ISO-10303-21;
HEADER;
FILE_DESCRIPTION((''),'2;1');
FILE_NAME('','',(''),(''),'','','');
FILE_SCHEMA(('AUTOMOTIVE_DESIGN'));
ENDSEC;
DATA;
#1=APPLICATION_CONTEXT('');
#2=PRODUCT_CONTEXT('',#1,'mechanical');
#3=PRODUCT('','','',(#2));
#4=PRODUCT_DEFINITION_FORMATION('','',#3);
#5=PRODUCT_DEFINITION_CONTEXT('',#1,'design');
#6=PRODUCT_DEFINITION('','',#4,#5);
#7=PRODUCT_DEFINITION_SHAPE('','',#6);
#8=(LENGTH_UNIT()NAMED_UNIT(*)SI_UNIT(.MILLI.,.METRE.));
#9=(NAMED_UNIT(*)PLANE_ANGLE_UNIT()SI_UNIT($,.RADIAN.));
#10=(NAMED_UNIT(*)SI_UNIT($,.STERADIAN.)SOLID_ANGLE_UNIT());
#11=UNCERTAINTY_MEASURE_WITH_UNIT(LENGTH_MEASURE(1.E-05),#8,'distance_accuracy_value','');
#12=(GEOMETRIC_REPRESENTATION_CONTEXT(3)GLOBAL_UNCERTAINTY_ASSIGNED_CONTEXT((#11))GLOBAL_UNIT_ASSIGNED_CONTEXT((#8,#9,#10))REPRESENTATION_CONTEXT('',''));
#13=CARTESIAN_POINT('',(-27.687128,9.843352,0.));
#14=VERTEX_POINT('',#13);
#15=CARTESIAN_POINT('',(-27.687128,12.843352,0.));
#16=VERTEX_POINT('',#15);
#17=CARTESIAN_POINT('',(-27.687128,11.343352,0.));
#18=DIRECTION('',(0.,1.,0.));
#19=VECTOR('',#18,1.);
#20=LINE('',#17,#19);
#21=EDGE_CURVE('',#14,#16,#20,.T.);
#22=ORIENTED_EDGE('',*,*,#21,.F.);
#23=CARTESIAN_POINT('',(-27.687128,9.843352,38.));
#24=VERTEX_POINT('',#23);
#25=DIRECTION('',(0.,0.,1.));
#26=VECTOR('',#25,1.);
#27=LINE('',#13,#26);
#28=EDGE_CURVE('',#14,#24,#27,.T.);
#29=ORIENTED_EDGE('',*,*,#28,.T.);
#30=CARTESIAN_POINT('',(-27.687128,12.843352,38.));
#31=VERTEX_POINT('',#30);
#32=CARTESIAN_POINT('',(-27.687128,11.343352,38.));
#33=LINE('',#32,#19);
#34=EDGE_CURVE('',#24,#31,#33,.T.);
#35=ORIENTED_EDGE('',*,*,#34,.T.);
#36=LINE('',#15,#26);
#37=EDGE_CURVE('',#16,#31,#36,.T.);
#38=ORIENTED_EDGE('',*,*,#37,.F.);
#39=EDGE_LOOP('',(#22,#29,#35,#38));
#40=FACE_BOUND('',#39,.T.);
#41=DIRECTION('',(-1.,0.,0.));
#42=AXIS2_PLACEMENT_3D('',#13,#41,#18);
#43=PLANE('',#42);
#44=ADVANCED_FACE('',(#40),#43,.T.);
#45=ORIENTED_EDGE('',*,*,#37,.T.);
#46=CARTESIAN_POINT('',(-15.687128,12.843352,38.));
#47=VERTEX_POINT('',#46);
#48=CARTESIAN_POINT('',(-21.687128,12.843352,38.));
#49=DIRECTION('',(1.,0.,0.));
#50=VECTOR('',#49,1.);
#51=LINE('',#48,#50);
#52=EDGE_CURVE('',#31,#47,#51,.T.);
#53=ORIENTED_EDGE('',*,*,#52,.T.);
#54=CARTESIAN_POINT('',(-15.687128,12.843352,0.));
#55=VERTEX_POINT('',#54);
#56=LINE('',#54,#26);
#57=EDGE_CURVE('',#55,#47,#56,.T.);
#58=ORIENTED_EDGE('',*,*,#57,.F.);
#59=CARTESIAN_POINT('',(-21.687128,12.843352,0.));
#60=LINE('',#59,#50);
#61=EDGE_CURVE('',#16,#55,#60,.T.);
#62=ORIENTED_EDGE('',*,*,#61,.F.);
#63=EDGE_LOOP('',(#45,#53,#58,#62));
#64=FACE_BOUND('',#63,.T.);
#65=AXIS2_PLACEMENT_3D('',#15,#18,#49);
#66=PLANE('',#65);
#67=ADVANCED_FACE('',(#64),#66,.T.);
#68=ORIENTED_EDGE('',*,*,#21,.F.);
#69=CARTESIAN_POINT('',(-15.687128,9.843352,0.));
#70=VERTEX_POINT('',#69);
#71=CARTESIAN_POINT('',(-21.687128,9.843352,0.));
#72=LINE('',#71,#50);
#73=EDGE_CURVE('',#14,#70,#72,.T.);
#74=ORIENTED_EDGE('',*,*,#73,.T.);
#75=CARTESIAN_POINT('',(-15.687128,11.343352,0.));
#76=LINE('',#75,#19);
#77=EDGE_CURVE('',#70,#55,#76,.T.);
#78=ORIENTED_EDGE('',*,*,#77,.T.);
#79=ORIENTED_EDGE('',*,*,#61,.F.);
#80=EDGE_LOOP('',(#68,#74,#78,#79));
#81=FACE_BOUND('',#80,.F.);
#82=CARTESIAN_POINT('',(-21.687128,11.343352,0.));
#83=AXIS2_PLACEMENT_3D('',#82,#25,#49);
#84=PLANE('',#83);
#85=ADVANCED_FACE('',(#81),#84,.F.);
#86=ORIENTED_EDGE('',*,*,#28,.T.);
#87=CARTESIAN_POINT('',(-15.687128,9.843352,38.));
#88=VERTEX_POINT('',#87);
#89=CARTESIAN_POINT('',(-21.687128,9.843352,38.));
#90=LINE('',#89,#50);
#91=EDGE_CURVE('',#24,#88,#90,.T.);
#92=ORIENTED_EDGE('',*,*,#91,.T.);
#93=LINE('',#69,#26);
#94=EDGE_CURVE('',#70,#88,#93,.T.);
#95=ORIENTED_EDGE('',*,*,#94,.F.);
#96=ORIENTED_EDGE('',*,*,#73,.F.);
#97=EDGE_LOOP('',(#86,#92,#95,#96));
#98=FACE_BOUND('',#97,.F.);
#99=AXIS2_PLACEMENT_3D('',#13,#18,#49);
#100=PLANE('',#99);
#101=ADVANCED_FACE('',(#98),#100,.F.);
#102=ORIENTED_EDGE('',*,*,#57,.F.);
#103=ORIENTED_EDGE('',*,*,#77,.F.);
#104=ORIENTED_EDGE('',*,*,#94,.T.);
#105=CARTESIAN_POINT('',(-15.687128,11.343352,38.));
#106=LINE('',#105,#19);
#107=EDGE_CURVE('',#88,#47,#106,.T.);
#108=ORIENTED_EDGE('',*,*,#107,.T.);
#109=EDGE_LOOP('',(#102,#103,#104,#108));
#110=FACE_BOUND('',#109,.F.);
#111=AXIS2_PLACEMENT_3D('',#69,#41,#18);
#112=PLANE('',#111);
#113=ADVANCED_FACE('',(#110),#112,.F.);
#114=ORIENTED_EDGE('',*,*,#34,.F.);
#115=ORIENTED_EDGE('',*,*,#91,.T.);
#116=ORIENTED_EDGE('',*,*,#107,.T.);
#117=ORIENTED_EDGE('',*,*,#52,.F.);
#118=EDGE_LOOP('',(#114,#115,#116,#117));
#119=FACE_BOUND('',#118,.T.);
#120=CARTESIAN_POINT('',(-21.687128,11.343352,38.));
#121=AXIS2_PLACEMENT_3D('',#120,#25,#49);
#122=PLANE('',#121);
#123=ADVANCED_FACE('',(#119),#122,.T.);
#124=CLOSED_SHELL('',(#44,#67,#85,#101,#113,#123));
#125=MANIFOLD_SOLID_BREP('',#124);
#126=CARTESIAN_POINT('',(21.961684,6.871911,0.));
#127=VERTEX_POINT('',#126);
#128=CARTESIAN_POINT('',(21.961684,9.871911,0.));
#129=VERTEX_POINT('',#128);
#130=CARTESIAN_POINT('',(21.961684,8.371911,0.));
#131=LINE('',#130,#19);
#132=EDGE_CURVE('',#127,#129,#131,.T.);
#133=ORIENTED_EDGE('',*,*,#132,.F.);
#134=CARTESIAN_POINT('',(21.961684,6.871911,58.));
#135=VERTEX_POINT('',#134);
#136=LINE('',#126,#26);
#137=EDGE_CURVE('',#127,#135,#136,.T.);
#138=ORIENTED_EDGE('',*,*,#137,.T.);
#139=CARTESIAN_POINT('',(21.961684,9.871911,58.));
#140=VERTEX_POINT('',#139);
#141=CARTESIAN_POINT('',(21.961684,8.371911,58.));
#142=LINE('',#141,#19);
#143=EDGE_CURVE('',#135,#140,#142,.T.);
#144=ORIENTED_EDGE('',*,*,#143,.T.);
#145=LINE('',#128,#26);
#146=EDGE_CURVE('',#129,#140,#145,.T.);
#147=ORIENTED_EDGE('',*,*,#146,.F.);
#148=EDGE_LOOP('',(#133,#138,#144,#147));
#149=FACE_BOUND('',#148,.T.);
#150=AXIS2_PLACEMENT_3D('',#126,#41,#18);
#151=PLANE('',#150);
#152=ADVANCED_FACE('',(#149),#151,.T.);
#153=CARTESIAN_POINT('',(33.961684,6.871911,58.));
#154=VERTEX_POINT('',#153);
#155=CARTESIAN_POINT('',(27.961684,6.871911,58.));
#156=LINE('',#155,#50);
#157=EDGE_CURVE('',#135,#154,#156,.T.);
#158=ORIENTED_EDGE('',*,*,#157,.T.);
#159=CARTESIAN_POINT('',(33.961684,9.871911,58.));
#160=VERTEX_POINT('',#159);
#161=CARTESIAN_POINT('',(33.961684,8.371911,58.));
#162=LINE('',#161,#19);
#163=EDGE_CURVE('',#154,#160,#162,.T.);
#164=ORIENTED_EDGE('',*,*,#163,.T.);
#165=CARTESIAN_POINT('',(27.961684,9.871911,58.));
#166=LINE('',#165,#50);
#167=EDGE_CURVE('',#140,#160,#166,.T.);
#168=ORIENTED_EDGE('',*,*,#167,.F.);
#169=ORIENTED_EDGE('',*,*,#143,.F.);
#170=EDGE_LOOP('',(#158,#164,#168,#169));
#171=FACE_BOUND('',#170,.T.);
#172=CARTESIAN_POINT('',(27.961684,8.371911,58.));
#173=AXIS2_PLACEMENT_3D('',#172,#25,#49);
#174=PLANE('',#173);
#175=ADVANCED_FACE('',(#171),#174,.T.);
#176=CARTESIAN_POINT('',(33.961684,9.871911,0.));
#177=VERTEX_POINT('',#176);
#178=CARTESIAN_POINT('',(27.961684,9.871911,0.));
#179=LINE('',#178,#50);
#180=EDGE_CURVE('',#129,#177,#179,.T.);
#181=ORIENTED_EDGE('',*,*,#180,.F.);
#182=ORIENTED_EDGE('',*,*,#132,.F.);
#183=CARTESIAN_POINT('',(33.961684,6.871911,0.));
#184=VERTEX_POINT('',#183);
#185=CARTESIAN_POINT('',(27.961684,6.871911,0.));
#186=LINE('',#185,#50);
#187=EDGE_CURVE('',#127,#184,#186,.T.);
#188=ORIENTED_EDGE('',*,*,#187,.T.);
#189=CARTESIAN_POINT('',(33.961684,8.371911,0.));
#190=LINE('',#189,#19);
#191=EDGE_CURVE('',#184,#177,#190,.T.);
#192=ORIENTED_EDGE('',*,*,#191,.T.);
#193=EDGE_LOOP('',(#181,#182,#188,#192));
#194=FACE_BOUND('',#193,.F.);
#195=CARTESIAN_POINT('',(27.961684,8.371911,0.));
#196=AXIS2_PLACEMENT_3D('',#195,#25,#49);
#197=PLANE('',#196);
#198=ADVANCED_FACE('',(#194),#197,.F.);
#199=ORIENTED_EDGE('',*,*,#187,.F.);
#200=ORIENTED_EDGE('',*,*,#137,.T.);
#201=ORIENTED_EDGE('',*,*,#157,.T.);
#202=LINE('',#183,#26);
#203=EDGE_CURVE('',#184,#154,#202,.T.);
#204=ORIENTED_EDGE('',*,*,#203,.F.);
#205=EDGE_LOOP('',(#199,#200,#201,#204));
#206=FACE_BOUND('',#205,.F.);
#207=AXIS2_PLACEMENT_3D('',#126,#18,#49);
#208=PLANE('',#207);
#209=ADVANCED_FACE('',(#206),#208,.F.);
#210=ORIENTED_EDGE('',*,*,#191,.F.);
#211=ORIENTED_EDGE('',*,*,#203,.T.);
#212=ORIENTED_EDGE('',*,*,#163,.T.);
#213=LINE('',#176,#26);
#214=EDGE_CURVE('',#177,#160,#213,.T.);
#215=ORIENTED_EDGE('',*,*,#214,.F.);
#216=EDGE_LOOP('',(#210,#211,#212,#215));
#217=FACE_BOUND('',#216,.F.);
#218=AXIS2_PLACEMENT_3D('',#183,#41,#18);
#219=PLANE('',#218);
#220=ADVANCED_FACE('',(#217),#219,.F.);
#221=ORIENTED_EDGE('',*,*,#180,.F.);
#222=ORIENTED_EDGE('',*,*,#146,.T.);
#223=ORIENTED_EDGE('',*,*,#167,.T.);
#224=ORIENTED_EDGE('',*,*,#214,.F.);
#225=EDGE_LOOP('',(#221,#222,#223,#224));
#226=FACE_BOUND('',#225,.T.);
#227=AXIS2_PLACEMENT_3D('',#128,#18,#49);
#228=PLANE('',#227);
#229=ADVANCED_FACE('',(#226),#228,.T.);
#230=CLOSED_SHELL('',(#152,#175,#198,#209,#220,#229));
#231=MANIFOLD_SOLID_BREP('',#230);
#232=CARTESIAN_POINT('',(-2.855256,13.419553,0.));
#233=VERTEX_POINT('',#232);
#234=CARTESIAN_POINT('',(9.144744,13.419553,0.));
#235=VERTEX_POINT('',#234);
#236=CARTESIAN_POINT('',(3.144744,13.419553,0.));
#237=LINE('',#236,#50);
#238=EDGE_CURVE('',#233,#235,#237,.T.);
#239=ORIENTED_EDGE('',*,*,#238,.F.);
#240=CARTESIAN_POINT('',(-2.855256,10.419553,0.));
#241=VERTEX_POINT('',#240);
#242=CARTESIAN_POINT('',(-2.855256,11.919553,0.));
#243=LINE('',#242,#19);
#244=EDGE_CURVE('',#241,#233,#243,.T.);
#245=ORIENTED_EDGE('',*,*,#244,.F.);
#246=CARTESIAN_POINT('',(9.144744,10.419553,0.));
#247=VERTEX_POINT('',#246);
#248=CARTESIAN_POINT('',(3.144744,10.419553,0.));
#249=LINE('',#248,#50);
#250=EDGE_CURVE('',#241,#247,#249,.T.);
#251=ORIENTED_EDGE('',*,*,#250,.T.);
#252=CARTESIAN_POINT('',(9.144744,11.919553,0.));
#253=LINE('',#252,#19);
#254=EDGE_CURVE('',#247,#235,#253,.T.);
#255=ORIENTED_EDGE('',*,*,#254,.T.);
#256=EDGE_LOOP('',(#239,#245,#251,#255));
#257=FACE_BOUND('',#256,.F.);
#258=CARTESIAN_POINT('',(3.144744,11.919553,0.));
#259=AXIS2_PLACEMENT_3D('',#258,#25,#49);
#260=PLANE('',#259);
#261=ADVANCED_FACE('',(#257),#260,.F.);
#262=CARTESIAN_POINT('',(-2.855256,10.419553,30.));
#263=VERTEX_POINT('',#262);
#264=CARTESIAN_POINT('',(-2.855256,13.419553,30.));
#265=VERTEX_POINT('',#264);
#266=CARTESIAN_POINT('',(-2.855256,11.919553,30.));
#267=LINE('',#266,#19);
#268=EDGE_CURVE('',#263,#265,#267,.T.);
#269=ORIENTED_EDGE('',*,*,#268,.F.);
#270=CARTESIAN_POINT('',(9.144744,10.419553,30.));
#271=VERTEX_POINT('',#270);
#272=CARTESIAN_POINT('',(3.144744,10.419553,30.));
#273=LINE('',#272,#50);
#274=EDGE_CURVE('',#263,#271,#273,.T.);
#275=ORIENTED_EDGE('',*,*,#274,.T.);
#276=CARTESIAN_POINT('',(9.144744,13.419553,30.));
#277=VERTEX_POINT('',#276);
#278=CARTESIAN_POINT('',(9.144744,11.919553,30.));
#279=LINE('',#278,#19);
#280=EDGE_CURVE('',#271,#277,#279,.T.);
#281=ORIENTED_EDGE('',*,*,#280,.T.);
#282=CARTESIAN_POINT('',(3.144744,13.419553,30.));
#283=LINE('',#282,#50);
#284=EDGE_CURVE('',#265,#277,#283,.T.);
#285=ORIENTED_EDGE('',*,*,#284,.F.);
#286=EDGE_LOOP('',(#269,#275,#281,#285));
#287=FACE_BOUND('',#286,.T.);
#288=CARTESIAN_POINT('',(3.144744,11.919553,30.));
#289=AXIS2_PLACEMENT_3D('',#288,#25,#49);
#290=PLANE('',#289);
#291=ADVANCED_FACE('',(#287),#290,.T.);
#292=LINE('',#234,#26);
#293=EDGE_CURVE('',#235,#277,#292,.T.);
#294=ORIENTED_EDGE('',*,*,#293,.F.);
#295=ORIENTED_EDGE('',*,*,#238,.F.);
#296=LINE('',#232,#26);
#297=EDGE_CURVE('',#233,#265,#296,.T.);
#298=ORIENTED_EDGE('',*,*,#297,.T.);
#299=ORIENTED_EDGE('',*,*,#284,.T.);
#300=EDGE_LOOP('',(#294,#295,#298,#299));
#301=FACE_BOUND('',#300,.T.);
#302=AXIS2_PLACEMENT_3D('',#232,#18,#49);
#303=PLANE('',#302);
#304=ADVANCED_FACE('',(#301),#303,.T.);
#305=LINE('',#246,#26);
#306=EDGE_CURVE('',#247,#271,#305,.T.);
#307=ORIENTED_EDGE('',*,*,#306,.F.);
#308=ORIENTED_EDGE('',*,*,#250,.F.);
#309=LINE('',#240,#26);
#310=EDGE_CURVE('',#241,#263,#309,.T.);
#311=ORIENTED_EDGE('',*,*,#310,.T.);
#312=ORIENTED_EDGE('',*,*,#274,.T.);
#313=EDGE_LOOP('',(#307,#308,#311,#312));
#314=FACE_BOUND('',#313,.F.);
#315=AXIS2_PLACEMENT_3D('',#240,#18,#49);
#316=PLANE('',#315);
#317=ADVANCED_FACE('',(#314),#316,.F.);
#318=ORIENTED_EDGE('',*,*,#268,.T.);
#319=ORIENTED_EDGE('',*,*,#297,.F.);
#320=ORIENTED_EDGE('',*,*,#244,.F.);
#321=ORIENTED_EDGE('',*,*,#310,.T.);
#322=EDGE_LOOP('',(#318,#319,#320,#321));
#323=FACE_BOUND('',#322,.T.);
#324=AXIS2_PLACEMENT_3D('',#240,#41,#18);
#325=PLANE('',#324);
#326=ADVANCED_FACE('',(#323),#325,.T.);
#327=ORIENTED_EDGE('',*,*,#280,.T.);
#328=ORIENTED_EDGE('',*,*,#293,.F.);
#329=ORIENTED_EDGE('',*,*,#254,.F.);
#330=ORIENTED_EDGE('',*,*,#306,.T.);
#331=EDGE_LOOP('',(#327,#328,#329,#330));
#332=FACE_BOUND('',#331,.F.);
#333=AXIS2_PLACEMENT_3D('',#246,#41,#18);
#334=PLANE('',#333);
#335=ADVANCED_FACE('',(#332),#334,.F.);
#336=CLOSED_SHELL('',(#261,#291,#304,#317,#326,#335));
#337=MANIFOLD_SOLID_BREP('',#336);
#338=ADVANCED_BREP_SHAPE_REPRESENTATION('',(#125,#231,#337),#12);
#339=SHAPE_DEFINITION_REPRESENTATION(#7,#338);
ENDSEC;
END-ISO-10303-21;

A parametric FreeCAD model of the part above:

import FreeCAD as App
import Part
import Sketcher

doc = App.newDocument("Part")
body = doc.addObject("PartDesign::Body", "Body")

# Sketch on XY plane
sketch1 = body.newObject("Sketcher::SketchObject", "Sketch")
sketch1.AttachmentSupport = (doc.getObject("XY_Plane"), [""])
sketch1.MapMode = "FlatFace"
sketch1.addGeometry([
    Part.LineSegment(App.Vector(-27.687128, 12.843352, 0), App.Vector(-27.687128, 9.843352, 0)),
    Part.LineSegment(App.Vector(-27.687128, 9.843352, 0), App.Vector(-15.687128, 9.843352, 0)),
    Part.LineSegment(App.Vector(-15.687128, 9.843352, 0), App.Vector(-15.687128, 12.843352, 0)),
    Part.LineSegment(App.Vector(-15.687128, 12.843352, 0), App.Vector(-27.687128, 12.843352, 0)),
], False)
sketch1.addConstraint([
    Sketcher.Constraint("Coincident", 0, 2, 1, 1),
    Sketcher.Constraint("Coincident", 1, 2, 2, 1),
    Sketcher.Constraint("Coincident", 2, 2, 3, 1),
    Sketcher.Constraint("Coincident", 3, 2, 0, 1),
    Sketcher.Constraint("Vertical", 0),
    Sketcher.Constraint("Horizontal", 1),
    Sketcher.Constraint("Vertical", 2),
    Sketcher.Constraint("Horizontal", 3),
    Sketcher.Constraint("DistanceX", 1, 1, 1, 2, 12.0),
    Sketcher.Constraint("DistanceY", 0, 2, 0, 1, 3.0),
    Sketcher.Constraint("DistanceX", 0, 2, -1, 1, 27.687128),
    Sketcher.Constraint("DistanceY", -1, 1, 0, 2, 9.843352),
])
pad1 = body.newObject("PartDesign::Pad", "Pad")
pad1.Profile = sketch1
pad1.Length = 38
body2 = doc.addObject("PartDesign::Body", "Body001")

# Sketch on XY plane
sketch2 = body2.newObject("Sketcher::SketchObject", "Sketch001")
sketch2.AttachmentSupport = (doc.getObject("XY_Plane001"), [""])
sketch2.MapMode = "FlatFace"
sketch2.addGeometry([
    Part.LineSegment(App.Vector(-2.855256, 13.419553, 0), App.Vector(-2.855256, 10.419553, 0)),
    Part.LineSegment(App.Vector(-2.855256, 10.419553, 0), App.Vector(9.144744, 10.419553, 0)),
    Part.LineSegment(App.Vector(9.144744, 10.419553, 0), App.Vector(9.144744, 13.419553, 0)),
    Part.LineSegment(App.Vector(9.144744, 13.419553, 0), App.Vector(-2.855256, 13.419553, 0)),
], False)
sketch2.addConstraint([
    Sketcher.Constraint("Coincident", 0, 2, 1, 1),
    Sketcher.Constraint("Coincident", 1, 2, 2, 1),
    Sketcher.Constraint("Coincident", 2, 2, 3, 1),
    Sketcher.Constraint("Coincident", 3, 2, 0, 1),
    Sketcher.Constraint("Vertical", 0),
    Sketcher.Constraint("Horizontal", 1),
    Sketcher.Constraint("Vertical", 2),
    Sketcher.Constraint("Horizontal", 3),
    Sketcher.Constraint("DistanceX", 1, 1, 1, 2, 12.0),
    Sketcher.Constraint("DistanceY", 0, 2, 0, 1, 3.0),
    Sketcher.Constraint("DistanceX", 0, 2, -1, 1, 2.855256),
    Sketcher.Constraint("DistanceY", -1, 1, 0, 2, 10.419553),
])
pad2 = body2.newObject("PartDesign::Pad", "Pad001")
pad2.Profile = sketch2
pad2.Length = 30
body3 = doc.addObject("PartDesign::Body", "Body002")

# Sketch on XY plane
sketch3 = body3.newObject("Sketcher::SketchObject", "Sketch002")
sketch3.AttachmentSupport = (doc.getObject("XY_Plane002"), [""])
sketch3.MapMode = "FlatFace"
sketch3.addGeometry([
    Part.LineSegment(App.Vector(21.961684, 9.871911, 0), App.Vector(21.961684, 6.871911, 0)),
    Part.LineSegment(App.Vector(21.961684, 6.871911, 0), App.Vector(33.961684, 6.871911, 0)),
    Part.LineSegment(App.Vector(33.961684, 6.871911, 0), App.Vector(33.961684, 9.871911, 0)),
    Part.LineSegment(App.Vector(33.961684, 9.871911, 0), App.Vector(21.961684, 9.871911, 0)),
], False)
sketch3.addConstraint([
    Sketcher.Constraint("Coincident", 0, 2, 1, 1),
    Sketcher.Constraint("Coincident", 1, 2, 2, 1),
    Sketcher.Constraint("Coincident", 2, 2, 3, 1),
    Sketcher.Constraint("Coincident", 3, 2, 0, 1),
    Sketcher.Constraint("Vertical", 0),
    Sketcher.Constraint("Horizontal", 1),
    Sketcher.Constraint("Vertical", 2),
    Sketcher.Constraint("Horizontal", 3),
    Sketcher.Constraint("DistanceX", 1, 1, 1, 2, 12.0),
    Sketcher.Constraint("DistanceY", 0, 2, 0, 1, 3.0),
    Sketcher.Constraint("DistanceY", -1, 1, 0, 2, 6.871911),
    Sketcher.Constraint("DistanceX", -1, 1, 0, 2, 21.961684),
])
pad3 = body3.newObject("PartDesign::Pad", "Pad002")
pad3.Profile = sketch3
pad3.Length = 58

doc.recompute()
